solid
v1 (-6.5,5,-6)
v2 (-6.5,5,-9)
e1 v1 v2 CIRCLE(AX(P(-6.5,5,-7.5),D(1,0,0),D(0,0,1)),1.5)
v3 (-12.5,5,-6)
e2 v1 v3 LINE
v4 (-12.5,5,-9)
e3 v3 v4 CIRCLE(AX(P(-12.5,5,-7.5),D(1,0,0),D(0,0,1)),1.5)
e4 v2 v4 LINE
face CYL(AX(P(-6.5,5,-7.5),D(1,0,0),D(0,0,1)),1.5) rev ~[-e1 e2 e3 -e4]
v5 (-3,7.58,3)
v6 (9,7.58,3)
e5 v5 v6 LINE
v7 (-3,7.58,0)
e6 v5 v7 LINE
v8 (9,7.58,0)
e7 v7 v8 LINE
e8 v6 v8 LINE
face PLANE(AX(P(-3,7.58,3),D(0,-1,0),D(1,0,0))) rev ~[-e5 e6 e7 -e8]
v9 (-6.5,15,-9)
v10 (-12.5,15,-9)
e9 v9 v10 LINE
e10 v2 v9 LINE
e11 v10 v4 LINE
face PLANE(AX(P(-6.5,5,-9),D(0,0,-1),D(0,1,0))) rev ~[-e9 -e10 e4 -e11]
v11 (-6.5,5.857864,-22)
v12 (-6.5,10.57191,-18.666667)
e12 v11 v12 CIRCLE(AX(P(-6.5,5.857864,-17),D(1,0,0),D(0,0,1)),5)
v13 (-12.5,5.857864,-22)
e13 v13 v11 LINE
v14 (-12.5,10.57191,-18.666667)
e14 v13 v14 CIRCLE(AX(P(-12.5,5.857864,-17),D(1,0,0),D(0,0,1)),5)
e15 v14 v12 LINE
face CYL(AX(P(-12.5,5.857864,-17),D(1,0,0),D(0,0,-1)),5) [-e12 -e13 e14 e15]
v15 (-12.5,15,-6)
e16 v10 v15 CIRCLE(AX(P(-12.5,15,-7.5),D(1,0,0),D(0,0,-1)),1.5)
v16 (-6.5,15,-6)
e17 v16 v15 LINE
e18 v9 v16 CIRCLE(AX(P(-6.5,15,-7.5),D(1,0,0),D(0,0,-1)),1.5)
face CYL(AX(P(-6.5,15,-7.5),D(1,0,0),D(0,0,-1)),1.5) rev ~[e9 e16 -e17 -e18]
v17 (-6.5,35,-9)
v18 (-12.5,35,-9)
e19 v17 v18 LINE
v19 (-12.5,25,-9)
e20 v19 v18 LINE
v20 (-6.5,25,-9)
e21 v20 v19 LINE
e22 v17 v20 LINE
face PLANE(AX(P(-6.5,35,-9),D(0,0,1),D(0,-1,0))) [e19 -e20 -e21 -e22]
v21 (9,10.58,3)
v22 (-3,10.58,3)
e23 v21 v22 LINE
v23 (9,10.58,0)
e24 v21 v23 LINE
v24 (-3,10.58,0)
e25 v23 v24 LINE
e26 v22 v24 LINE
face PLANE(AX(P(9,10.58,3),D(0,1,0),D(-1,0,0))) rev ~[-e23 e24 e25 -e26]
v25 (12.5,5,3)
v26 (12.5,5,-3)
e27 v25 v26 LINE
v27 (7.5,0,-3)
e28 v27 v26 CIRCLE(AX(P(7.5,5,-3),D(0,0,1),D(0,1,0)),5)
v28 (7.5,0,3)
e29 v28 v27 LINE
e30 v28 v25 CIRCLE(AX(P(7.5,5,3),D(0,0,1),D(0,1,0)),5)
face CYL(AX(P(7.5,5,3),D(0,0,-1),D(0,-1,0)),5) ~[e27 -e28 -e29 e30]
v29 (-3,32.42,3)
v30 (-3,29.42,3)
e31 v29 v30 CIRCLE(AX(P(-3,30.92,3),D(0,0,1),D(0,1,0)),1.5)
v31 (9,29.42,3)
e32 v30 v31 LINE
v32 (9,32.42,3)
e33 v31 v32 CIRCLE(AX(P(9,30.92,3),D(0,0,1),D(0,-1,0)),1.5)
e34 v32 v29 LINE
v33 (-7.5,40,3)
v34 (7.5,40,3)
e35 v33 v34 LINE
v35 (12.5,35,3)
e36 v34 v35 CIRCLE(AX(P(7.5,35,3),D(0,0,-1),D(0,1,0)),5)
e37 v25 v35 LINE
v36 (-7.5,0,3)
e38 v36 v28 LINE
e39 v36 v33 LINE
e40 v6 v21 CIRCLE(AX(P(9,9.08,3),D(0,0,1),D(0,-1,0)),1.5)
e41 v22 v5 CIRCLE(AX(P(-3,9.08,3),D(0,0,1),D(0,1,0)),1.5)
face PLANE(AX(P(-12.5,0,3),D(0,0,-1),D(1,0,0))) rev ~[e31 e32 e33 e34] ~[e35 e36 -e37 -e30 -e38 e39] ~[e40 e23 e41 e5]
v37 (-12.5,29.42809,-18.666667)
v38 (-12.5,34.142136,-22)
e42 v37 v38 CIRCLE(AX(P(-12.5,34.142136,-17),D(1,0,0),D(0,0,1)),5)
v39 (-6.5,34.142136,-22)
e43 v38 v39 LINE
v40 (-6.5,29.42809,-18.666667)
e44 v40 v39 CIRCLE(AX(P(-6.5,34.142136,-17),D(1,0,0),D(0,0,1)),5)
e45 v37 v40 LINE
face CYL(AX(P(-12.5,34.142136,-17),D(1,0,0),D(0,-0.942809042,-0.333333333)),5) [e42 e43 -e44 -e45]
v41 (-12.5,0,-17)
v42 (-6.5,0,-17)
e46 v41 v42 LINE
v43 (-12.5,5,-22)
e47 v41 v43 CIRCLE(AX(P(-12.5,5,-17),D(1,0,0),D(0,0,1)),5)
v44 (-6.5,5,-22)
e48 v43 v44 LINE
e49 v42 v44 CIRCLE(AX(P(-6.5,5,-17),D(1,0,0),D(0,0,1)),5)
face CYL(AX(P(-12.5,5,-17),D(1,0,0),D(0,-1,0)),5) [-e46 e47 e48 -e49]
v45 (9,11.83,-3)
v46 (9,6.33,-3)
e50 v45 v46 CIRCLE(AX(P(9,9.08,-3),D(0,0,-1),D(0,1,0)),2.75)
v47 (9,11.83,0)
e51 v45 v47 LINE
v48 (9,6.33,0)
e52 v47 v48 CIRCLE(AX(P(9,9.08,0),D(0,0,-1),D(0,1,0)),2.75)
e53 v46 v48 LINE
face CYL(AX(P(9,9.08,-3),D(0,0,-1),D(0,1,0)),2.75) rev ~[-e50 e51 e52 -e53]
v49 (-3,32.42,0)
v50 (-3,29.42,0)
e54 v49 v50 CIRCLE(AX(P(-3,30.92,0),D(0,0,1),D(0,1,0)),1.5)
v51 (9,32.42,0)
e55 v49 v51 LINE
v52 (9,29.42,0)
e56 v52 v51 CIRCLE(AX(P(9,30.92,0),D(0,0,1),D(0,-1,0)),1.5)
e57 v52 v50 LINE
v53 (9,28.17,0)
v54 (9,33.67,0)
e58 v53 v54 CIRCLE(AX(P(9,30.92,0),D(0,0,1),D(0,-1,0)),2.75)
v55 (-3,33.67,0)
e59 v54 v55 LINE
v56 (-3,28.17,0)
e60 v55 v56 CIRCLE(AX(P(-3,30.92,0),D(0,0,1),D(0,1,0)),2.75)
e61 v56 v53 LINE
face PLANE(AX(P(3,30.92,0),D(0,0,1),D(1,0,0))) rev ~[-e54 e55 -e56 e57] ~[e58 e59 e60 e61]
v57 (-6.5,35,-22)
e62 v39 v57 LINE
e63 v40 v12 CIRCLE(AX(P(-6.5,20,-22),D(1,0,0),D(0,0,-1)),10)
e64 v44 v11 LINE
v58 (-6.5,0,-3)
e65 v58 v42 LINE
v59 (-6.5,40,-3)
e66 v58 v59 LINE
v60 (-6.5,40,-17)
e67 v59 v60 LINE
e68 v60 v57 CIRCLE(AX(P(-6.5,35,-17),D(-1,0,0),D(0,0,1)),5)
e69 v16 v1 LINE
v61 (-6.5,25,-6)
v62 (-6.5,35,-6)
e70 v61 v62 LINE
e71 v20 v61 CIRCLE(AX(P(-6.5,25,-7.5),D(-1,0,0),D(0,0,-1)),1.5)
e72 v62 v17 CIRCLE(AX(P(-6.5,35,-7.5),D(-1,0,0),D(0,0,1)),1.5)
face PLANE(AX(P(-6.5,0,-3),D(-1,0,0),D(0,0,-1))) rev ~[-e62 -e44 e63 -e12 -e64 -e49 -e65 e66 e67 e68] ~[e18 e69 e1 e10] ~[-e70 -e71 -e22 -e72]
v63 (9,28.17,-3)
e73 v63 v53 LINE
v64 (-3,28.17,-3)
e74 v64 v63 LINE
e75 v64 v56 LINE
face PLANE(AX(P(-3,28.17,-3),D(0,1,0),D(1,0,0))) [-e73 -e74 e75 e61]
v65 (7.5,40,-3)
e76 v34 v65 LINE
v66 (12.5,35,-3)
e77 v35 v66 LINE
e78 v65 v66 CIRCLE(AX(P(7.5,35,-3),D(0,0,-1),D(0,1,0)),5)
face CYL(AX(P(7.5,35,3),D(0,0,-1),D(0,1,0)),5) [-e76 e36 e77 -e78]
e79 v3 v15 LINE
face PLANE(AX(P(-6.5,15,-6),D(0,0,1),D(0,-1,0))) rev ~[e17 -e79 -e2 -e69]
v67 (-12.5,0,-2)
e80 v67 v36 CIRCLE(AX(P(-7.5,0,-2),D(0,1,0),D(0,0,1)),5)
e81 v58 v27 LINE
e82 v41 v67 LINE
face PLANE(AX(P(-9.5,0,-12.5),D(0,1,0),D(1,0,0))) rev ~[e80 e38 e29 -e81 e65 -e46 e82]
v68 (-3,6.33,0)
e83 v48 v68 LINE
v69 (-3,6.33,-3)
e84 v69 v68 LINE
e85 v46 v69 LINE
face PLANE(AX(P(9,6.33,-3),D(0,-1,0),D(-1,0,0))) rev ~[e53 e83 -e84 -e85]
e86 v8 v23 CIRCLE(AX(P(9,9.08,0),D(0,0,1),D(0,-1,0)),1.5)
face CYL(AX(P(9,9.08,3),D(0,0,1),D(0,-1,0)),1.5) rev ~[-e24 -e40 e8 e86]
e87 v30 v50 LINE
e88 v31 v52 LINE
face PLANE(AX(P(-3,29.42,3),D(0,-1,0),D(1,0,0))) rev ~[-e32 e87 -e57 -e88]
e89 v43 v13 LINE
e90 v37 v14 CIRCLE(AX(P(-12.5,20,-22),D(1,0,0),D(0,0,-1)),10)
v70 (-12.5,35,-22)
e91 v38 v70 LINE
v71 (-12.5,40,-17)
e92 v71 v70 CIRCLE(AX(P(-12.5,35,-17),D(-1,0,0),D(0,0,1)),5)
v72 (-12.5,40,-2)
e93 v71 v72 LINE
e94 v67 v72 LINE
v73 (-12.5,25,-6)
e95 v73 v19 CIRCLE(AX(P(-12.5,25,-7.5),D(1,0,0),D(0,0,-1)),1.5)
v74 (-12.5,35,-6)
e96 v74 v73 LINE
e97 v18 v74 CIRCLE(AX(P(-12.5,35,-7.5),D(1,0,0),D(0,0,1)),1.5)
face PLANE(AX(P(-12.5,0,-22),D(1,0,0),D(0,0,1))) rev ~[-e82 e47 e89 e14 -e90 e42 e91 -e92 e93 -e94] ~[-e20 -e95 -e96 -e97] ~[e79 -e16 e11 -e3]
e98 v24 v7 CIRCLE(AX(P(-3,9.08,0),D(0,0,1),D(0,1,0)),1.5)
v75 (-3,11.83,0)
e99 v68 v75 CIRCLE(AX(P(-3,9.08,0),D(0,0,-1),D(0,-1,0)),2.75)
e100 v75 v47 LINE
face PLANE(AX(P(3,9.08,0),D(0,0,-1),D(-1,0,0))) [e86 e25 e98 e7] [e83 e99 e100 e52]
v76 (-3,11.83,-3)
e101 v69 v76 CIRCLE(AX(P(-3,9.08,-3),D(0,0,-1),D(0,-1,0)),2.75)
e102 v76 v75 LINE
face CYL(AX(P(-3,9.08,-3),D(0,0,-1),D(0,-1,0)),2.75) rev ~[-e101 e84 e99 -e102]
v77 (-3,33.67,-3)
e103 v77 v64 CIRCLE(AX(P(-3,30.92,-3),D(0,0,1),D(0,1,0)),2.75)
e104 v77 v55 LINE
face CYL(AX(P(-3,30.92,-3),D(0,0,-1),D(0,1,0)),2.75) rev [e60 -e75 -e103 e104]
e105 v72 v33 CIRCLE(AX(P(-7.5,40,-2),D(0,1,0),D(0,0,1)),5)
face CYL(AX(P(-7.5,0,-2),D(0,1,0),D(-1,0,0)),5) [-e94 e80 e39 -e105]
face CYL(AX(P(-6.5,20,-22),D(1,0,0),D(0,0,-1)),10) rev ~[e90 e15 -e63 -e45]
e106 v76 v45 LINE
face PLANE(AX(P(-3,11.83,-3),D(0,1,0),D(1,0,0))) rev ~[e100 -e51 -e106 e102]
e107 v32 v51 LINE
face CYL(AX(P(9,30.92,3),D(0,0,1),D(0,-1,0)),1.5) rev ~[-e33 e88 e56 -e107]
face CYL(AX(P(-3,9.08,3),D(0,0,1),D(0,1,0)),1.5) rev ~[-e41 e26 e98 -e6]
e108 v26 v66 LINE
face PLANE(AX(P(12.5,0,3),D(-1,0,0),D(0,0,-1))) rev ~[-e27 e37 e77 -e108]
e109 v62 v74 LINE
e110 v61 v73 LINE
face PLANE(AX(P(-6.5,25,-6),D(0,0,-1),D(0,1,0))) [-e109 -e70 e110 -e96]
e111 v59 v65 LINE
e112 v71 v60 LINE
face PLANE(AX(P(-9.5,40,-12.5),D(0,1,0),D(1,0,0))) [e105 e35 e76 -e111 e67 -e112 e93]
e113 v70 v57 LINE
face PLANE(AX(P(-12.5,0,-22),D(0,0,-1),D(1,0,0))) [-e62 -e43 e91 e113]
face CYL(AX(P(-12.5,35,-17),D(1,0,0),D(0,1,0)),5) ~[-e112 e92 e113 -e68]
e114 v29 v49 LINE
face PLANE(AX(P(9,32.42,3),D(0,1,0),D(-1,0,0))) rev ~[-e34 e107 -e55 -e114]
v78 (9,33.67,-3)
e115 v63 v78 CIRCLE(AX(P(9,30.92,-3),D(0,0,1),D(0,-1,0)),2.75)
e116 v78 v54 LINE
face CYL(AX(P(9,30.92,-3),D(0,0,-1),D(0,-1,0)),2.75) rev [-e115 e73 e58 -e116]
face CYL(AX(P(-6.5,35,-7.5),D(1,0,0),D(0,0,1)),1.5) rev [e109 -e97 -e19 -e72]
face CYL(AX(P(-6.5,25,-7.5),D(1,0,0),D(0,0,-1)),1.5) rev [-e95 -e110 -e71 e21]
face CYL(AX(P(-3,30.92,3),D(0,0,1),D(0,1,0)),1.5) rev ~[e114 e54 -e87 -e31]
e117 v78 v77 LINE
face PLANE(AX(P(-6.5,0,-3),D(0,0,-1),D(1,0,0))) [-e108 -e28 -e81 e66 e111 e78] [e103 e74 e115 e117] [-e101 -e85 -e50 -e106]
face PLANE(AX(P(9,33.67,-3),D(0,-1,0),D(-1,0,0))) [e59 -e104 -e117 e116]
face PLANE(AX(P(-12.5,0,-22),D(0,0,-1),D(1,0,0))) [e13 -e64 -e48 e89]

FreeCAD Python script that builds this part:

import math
import FreeCAD as App
import Part
import Sketcher
from FreeCAD import Vector
Q = App.Units.Quantity


def edges_at(feature, points):
    """Names of the edges that pass closest to the given points."""
    edges = feature.Shape.Edges
    near = lambda p: min(range(len(edges)), key=lambda i: edges[i].distToShape(Part.Vertex(*p))[0])
    return sorted({f"Edge{near(p) + 1}" for p in points})


def add_polygon(sketch, points):
    """Adds a closed chain of lines whose ends are joined by coincident constraints."""
    first, n = sketch.GeometryCount, len(points)
    for a, b in zip(points, points[1:] + points[:1]):
        sketch.addGeometry(Part.LineSegment(App.Vector(*a, 0), App.Vector(*b, 0)), False)
    for i in range(n):
        sketch.addConstraint(Sketcher.Constraint("Coincident", first + i, 2, first + (i + 1) % n, 1))

doc = App.newDocument("Part")
body = doc.addObject("PartDesign::Body", "Body")

# Sketch on XZ plane
sketch1 = body.newObject("Sketcher::SketchObject", "Sketch")
sketch1.AttachmentSupport = (doc.getObject("XZ_Plane"), [""])
sketch1.MapMode = "FlatFace"
add_polygon(sketch1, [(-12.5, -22), (-12.5, 3), (12.5, 3), (12.5, -3), (-6.5, -3), (-6.5, -22)])  # lines 0-5
sketch1.addConstraint(Sketcher.Constraint("Vertical", 0))
sketch1.addConstraint(Sketcher.Constraint("Horizontal", 1))
sketch1.addConstraint(Sketcher.Constraint("Vertical", 2))
sketch1.addConstraint(Sketcher.Constraint("Horizontal", 3))
sketch1.addConstraint(Sketcher.Constraint("Vertical", 4))
sketch1.addConstraint(Sketcher.Constraint("Horizontal", 5))
sketch1.addConstraint(Sketcher.Constraint("Symmetric", 0, 2, 2, 2, -1, 1))
sketch1.addConstraint(Sketcher.Constraint("Equal", 1, 0))
sketch1.addConstraint(Sketcher.Constraint("Equal", 5, 2))
sketch1.addConstraint(Sketcher.Constraint("DistanceX", 1, 1, 1, 2, Q("25 mm")))
sketch1.addConstraint(Sketcher.Constraint("DistanceX", 3, 2, 3, 1, Q("19 mm")))
pad1 = body.newObject("PartDesign::Pad", "Pad")
pad1.Profile = sketch1
pad1.Length = 40
pad1.Reversed = True

# Sketch on YZ plane
sketch2 = body.newObject("Sketcher::SketchObject", "Sketch001")
sketch2.AttachmentSupport = (doc.getObject("YZ_Plane"), [""])
sketch2.MapMode = "FlatFace"
sketch2.AttachmentOffset = App.Placement(Vector(0, 0, -6.5), App.Rotation())
sketch2.addGeometry(Part.Circle(Vector(20, -22, 0), Vector(0, 0, 1), 10), False)
sketch2.addConstraint(Sketcher.Constraint("Diameter", 0, Q("20 mm")))
sketch2.addConstraint(Sketcher.Constraint("DistanceX", -1, 1, 0, 3, Q("20 mm")))
sketch2.addConstraint(Sketcher.Constraint("DistanceY", 0, 3, -1, 1, Q("22 mm")))
pocket1 = body.newObject("PartDesign::Pocket", "Pocket")
pocket1.Profile = sketch2
pocket1.Type = "UpToFirst"

# Sketch on YZ plane
sketch3 = body.newObject("Sketcher::SketchObject", "Sketch002")
sketch3.AttachmentSupport = (doc.getObject("YZ_Plane"), [""])
sketch3.MapMode = "FlatFace"
sketch3.AttachmentOffset = App.Placement(Vector(0, 0, -6.5), App.Rotation())
sketch3.addGeometry(Part.LineSegment(Vector(25, -9, 0), Vector(35, -9, 0)), False)
sketch3.addGeometry(Part.ArcOfCircle(Part.Circle(Vector(35, -7.5, 0), Vector(0, 0, 1), 1.5), math.radians(-90), math.radians(90)), False)
sketch3.addGeometry(Part.LineSegment(Vector(35, -6, 0), Vector(25, -6, 0)), False)
sketch3.addGeometry(Part.ArcOfCircle(Part.Circle(Vector(25, -7.5, 0), Vector(0, 0, 1), 1.5), math.radians(90), math.radians(270)), False)
sketch3.addConstraint(Sketcher.Constraint("Tangent", 0, 2, 1, 1))
sketch3.addConstraint(Sketcher.Constraint("Tangent", 1, 2, 2, 1))
sketch3.addConstraint(Sketcher.Constraint("Tangent", 2, 2, 3, 1))
sketch3.addConstraint(Sketcher.Constraint("Tangent", 3, 2, 0, 1))
sketch3.addConstraint(Sketcher.Constraint("Horizontal", 0))
sketch3.addConstraint(Sketcher.Constraint("Horizontal", 2))
sketch3.addConstraint(Sketcher.Constraint("Radius", 1, Q("1.5 mm")))
sketch3.addConstraint(Sketcher.Constraint("DistanceX", 0, 1, 0, 2, Q("10 mm")))
sketch3.addConstraint(Sketcher.Constraint("DistanceX", -1, 1, 1, 3, Q("35 mm")))
sketch3.addConstraint(Sketcher.Constraint("DistanceY", 0, 2, -1, 1, Q("9 mm")))
pocket2 = body.newObject("PartDesign::Pocket", "Pocket001")
pocket2.Profile = sketch3
pocket2.Type = "UpToFirst"

# Sketch on YZ plane
sketch4 = body.newObject("Sketcher::SketchObject", "Sketch003")
sketch4.AttachmentSupport = (doc.getObject("YZ_Plane"), [""])
sketch4.MapMode = "FlatFace"
sketch4.AttachmentOffset = App.Placement(Vector(0, 0, -6.5), App.Rotation())
sketch4.addGeometry(Part.LineSegment(Vector(5, -9, 0), Vector(15, -9, 0)), False)
sketch4.addGeometry(Part.ArcOfCircle(Part.Circle(Vector(15, -7.5, 0), Vector(0, 0, 1), 1.5), math.radians(-90), math.radians(90)), False)
sketch4.addGeometry(Part.LineSegment(Vector(15, -6, 0), Vector(5, -6, 0)), False)
sketch4.addGeometry(Part.ArcOfCircle(Part.Circle(Vector(5, -7.5, 0), Vector(0, 0, 1), 1.5), math.radians(90), math.radians(270)), False)
sketch4.addConstraint(Sketcher.Constraint("Tangent", 0, 2, 1, 1))
sketch4.addConstraint(Sketcher.Constraint("Tangent", 1, 2, 2, 1))
sketch4.addConstraint(Sketcher.Constraint("Tangent", 2, 2, 3, 1))
sketch4.addConstraint(Sketcher.Constraint("Tangent", 3, 2, 0, 1))
sketch4.addConstraint(Sketcher.Constraint("Horizontal", 0))
sketch4.addConstraint(Sketcher.Constraint("Horizontal", 2))
sketch4.addConstraint(Sketcher.Constraint("Radius", 1, Q("1.5 mm")))
sketch4.addConstraint(Sketcher.Constraint("DistanceX", 0, 1, 0, 2, Q("10 mm")))
sketch4.addConstraint(Sketcher.Constraint("DistanceX", -1, 1, 1, 3, Q("15 mm")))
sketch4.addConstraint(Sketcher.Constraint("DistanceY", 0, 2, -1, 1, Q("9 mm")))
pocket3 = body.newObject("PartDesign::Pocket", "Pocket002")
pocket3.Profile = sketch4
pocket3.Type = "UpToFirst"

# Sketch on XY plane
sketch5 = body.newObject("Sketcher::SketchObject", "Sketch004")
sketch5.AttachmentSupport = (doc.getObject("XY_Plane"), [""])
sketch5.MapMode = "FlatFace"
sketch5.AttachmentOffset = App.Placement(Vector(0, 0, 3), App.Rotation())
sketch5.addGeometry(Part.LineSegment(Vector(-3, 32.42, 0), Vector(9, 32.42, 0)), False)
sketch5.addGeometry(Part.ArcOfCircle(Part.Circle(Vector(9, 30.92, 0), Vector(0, 0, 1), 1.5), math.radians(-90), math.radians(90)), False)
sketch5.addGeometry(Part.LineSegment(Vector(9, 29.42, 0), Vector(-3, 29.42, 0)), False)
sketch5.addGeometry(Part.ArcOfCircle(Part.Circle(Vector(-3, 30.92, 0), Vector(0, 0, 1), 1.5), math.radians(90), math.radians(270)), False)
sketch5.addConstraint(Sketcher.Constraint("Tangent", 0, 2, 1, 2))
sketch5.addConstraint(Sketcher.Constraint("Tangent", 1, 1, 2, 1))
sketch5.addConstraint(Sketcher.Constraint("Tangent", 2, 2, 3, 2))
sketch5.addConstraint(Sketcher.Constraint("Tangent", 3, 1, 0, 1))
sketch5.addConstraint(Sketcher.Constraint("Horizontal", 0))
sketch5.addConstraint(Sketcher.Constraint("Horizontal", 2))
sketch5.addConstraint(Sketcher.Constraint("Radius", 1, Q("1.5 mm")))
sketch5.addConstraint(Sketcher.Constraint("DistanceX", 0, 1, 0, 2, Q("12 mm")))
sketch5.addConstraint(Sketcher.Constraint("DistanceX", -1, 1, 1, 3, Q("9 mm")))
sketch5.addConstraint(Sketcher.Constraint("DistanceY", -1, 1, 1, 3, Q("30.92 mm")))
pocket4 = body.newObject("PartDesign::Pocket", "Pocket003")
pocket4.Profile = sketch5
pocket4.Type = "UpToFirst"

# Sketch on XY plane
sketch6 = body.newObject("Sketcher::SketchObject", "Sketch005")
sketch6.AttachmentSupport = (doc.getObject("XY_Plane"), [""])
sketch6.MapMode = "FlatFace"
sketch6.AttachmentOffset = App.Placement(Vector(0, 0, 3), App.Rotation())
sketch6.addGeometry(Part.LineSegment(Vector(-3, 10.58, 0), Vector(9, 10.58, 0)), False)
sketch6.addGeometry(Part.ArcOfCircle(Part.Circle(Vector(9, 9.08, 0), Vector(0, 0, 1), 1.5), math.radians(-90), math.radians(90)), False)
sketch6.addGeometry(Part.LineSegment(Vector(9, 7.58, 0), Vector(-3, 7.58, 0)), False)
sketch6.addGeometry(Part.ArcOfCircle(Part.Circle(Vector(-3, 9.08, 0), Vector(0, 0, 1), 1.5), math.radians(90), math.radians(270)), False)
sketch6.addConstraint(Sketcher.Constraint("Tangent", 0, 2, 1, 2))
sketch6.addConstraint(Sketcher.Constraint("Tangent", 1, 1, 2, 1))
sketch6.addConstraint(Sketcher.Constraint("Tangent", 2, 2, 3, 2))
sketch6.addConstraint(Sketcher.Constraint("Tangent", 3, 1, 0, 1))
sketch6.addConstraint(Sketcher.Constraint("Horizontal", 0))
sketch6.addConstraint(Sketcher.Constraint("Horizontal", 2))
sketch6.addConstraint(Sketcher.Constraint("Radius", 1, Q("1.5 mm")))
sketch6.addConstraint(Sketcher.Constraint("DistanceX", 0, 1, 0, 2, Q("12 mm")))
sketch6.addConstraint(Sketcher.Constraint("DistanceX", -1, 1, 1, 3, Q("9 mm")))
sketch6.addConstraint(Sketcher.Constraint("DistanceY", -1, 1, 1, 3, Q("9.08 mm")))
pocket5 = body.newObject("PartDesign::Pocket", "Pocket004")
pocket5.Profile = sketch6
pocket5.Type = "UpToFirst"

# Sketch on XY plane
sketch7 = body.newObject("Sketcher::SketchObject", "Sketch006")
sketch7.AttachmentSupport = (doc.getObject("XY_Plane"), [""])
sketch7.MapMode = "FlatFace"
sketch7.AttachmentOffset = App.Placement(Vector(0, 0, -3), App.Rotation())
sketch7.addGeometry(Part.LineSegment(Vector(9, 6.33, 0), Vector(-3, 6.33, 0)), False)
sketch7.addGeometry(Part.ArcOfCircle(Part.Circle(Vector(-3, 9.08, 0), Vector(0, 0, 1), 2.75), math.radians(90), math.radians(270)), False)
sketch7.addGeometry(Part.LineSegment(Vector(-3, 11.83, 0), Vector(9, 11.83, 0)), False)
sketch7.addGeometry(Part.ArcOfCircle(Part.Circle(Vector(9, 9.08, 0), Vector(0, 0, 1), 2.75), math.radians(-90), math.radians(90)), False)
sketch7.addGeometry(Part.LineSegment(Vector(-3, 33.67, 0), Vector(9, 33.67, 0)), False)
sketch7.addGeometry(Part.ArcOfCircle(Part.Circle(Vector(9, 30.92, 0), Vector(0, 0, 1), 2.75), math.radians(-90), math.radians(90)), False)
sketch7.addGeometry(Part.LineSegment(Vector(9, 28.17, 0), Vector(-3, 28.17, 0)), False)
sketch7.addGeometry(Part.ArcOfCircle(Part.Circle(Vector(-3, 30.92, 0), Vector(0, 0, 1), 2.75), math.radians(90), math.radians(270)), False)
sketch7.addConstraint(Sketcher.Constraint("Tangent", 0, 2, 1, 2))
sketch7.addConstraint(Sketcher.Constraint("Tangent", 1, 1, 2, 1))
sketch7.addConstraint(Sketcher.Constraint("Tangent", 2, 2, 3, 2))
sketch7.addConstraint(Sketcher.Constraint("Tangent", 3, 1, 0, 1))
sketch7.addConstraint(Sketcher.Constraint("Tangent", 4, 2, 5, 2))
sketch7.addConstraint(Sketcher.Constraint("Tangent", 5, 1, 6, 1))
sketch7.addConstraint(Sketcher.Constraint("Tangent", 6, 2, 7, 2))
sketch7.addConstraint(Sketcher.Constraint("Tangent", 7, 1, 4, 1))
sketch7.addConstraint(Sketcher.Constraint("Horizontal", 0))
sketch7.addConstraint(Sketcher.Constraint("Horizontal", 2))
sketch7.addConstraint(Sketcher.Constraint("Horizontal", 4))
sketch7.addConstraint(Sketcher.Constraint("Horizontal", 6))
sketch7.addConstraint(Sketcher.Constraint("Equal", 3, 5))
sketch7.addConstraint(Sketcher.Constraint("Vertical", 3, 3, 5, 3))
sketch7.addConstraint(Sketcher.Constraint("Vertical", 1, 3, 7, 3))
sketch7.addConstraint(Sketcher.Constraint("DistanceX", 0, 2, 0, 1, Q("12 mm")))
sketch7.addConstraint(Sketcher.Constraint("Radius", 1, Q("2.75 mm")))
sketch7.addConstraint(Sketcher.Constraint("DistanceX", 1, 3, -1, 1, Q("3 mm")))
sketch7.addConstraint(Sketcher.Constraint("DistanceY", -1, 1, 1, 3, Q("9.08 mm")))
sketch7.addConstraint(Sketcher.Constraint("DistanceY", -1, 1, 5, 3, Q("30.92 mm")))
pocket6 = body.newObject("PartDesign::Pocket", "Pocket005")
pocket6.Profile = sketch7
pocket6.Length = 3
pocket6.Reversed = True
doc.recompute()

fillet = body.newObject("PartDesign::Fillet", "Fillet")
fillet.Base = (pocket6, edges_at(pocket6, [
    (-12.5, 20, 3),
    (12.5, 40, 0),
    (-9.5, 40, -22),
    (-9.5, 30, -22),
    (-9.5, 10, -22),
    (-9.5, 0, -22),
    (12.5, 0, 0),
]))
fillet.Radius = 5

doc.recompute()
